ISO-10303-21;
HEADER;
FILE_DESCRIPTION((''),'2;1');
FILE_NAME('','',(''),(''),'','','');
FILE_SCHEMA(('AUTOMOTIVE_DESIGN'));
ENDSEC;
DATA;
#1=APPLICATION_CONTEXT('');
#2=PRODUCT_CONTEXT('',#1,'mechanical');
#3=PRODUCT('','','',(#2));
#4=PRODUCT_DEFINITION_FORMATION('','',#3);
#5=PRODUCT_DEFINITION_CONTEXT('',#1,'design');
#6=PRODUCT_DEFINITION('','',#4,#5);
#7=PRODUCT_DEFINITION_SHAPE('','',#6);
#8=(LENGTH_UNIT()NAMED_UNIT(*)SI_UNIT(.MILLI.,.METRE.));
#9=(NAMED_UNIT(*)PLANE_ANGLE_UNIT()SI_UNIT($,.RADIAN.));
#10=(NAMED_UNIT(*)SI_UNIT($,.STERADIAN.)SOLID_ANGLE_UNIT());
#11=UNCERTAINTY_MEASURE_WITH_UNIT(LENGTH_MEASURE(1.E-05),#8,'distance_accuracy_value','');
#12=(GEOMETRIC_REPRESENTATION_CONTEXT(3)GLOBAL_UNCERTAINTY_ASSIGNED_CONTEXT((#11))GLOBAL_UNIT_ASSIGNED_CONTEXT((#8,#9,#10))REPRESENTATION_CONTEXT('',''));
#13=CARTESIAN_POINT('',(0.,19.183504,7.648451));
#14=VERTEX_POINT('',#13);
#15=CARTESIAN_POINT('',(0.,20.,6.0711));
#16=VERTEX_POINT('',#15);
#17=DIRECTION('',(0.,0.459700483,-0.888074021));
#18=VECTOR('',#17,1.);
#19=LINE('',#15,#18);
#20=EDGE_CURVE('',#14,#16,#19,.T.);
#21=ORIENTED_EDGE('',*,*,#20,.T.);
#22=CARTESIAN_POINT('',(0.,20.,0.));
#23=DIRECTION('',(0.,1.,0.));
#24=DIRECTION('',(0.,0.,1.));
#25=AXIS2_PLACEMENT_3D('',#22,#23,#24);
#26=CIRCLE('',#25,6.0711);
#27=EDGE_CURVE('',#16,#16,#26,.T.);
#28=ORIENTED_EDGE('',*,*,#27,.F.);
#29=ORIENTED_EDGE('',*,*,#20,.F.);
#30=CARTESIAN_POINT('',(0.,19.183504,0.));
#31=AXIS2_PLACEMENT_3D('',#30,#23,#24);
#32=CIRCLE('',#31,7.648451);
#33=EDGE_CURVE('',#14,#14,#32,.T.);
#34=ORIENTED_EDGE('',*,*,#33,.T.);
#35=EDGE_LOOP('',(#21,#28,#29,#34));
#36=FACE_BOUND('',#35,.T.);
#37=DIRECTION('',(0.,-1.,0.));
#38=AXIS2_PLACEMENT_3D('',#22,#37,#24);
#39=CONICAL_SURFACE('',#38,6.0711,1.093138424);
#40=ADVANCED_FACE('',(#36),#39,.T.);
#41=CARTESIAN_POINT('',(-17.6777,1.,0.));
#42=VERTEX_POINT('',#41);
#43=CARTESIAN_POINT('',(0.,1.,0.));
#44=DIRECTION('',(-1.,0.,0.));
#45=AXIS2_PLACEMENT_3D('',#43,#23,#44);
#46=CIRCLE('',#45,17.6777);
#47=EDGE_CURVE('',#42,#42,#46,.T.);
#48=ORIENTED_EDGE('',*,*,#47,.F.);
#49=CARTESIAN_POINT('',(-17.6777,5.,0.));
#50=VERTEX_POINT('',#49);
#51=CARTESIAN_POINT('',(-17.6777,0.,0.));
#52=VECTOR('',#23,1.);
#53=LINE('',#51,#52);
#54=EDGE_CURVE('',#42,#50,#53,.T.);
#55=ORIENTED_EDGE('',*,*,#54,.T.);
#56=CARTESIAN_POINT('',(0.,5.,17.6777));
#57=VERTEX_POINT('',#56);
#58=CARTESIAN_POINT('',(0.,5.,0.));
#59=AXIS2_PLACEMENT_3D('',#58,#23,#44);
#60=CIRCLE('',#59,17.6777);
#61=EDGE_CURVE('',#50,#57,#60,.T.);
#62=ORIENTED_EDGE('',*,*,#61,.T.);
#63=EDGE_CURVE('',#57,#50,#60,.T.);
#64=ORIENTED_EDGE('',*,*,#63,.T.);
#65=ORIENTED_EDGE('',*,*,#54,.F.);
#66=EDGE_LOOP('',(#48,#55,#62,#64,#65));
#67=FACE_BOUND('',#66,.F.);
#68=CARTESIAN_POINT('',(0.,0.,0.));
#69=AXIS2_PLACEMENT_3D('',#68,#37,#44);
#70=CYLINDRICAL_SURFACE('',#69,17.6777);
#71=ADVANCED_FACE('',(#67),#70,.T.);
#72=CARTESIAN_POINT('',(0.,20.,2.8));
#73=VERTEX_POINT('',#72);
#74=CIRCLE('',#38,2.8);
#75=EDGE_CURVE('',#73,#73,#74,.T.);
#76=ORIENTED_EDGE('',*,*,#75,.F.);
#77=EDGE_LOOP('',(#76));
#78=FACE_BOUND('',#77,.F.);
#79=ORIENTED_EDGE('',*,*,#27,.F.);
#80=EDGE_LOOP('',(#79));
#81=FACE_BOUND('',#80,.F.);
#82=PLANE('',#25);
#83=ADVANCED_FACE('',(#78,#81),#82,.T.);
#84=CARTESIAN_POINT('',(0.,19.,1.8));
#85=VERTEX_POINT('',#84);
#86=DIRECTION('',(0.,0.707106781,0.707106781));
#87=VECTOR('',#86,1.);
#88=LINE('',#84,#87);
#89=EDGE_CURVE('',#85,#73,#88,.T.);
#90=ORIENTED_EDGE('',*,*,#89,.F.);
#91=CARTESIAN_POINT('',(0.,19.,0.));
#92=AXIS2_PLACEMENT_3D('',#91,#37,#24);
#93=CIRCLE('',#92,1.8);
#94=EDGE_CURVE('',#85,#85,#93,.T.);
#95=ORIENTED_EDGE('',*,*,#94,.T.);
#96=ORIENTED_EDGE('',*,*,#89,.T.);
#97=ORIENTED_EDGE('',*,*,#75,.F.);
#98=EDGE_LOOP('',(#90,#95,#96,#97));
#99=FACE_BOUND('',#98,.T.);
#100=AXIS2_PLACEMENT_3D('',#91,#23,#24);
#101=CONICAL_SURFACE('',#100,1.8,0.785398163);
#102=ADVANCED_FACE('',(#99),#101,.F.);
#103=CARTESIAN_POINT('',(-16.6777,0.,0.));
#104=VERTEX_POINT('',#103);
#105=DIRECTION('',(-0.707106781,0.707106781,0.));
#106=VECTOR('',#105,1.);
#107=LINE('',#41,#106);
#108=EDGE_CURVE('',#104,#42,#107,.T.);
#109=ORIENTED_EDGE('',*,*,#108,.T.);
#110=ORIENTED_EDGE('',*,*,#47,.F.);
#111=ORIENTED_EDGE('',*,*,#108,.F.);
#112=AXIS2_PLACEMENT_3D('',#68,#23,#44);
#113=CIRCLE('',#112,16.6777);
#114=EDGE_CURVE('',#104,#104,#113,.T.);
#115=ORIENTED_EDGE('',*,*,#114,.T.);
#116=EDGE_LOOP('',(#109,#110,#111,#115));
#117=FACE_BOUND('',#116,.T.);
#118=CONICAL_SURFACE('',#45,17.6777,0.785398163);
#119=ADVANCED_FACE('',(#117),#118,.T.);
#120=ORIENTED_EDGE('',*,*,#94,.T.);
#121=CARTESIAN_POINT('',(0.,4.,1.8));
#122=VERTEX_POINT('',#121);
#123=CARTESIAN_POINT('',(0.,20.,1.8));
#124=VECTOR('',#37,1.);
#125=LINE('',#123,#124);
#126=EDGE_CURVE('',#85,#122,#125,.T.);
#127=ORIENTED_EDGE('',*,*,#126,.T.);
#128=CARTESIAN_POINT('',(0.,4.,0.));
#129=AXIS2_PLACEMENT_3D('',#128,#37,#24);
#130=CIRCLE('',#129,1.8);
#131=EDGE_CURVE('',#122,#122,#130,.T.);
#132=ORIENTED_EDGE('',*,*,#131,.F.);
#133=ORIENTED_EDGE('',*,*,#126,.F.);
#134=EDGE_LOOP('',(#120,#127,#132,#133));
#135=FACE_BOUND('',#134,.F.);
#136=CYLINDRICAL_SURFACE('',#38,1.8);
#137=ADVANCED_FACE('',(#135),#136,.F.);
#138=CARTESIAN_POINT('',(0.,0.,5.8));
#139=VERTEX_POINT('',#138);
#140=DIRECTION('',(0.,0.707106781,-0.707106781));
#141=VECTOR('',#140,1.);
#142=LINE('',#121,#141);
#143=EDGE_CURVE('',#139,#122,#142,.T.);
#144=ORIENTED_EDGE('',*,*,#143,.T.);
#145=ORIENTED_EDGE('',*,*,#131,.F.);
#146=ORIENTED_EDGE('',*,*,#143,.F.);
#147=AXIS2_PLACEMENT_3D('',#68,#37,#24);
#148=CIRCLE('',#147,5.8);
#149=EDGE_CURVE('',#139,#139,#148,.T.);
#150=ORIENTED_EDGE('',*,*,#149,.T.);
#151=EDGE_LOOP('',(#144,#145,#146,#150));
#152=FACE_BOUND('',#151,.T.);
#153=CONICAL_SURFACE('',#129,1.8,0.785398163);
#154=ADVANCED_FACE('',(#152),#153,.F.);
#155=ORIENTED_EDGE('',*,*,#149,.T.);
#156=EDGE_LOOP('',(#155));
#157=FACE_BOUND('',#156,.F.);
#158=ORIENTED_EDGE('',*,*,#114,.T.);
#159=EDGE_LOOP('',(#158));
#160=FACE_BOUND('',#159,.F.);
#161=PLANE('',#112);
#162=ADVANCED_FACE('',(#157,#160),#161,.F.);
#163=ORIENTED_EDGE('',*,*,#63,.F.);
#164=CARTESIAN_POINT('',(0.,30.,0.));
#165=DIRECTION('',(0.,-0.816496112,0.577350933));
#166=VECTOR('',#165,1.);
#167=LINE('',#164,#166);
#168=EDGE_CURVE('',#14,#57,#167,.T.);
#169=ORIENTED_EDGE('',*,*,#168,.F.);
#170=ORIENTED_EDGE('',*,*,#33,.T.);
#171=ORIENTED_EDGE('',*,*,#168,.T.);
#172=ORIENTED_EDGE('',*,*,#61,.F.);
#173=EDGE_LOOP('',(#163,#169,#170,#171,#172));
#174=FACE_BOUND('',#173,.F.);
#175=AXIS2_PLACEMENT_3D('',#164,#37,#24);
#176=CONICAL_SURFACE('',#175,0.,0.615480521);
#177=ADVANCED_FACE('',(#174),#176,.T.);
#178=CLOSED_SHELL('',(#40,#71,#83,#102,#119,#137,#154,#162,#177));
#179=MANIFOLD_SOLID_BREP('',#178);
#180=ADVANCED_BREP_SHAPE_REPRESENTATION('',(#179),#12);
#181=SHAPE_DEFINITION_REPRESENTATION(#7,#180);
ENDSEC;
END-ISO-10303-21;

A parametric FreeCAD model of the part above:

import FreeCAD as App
import Part
import Sketcher
from FreeCAD import Vector


def edges_at(feature, points):
    """Names of the edges that pass closest to the given points."""
    edges = feature.Shape.Edges
    near = lambda p: min(range(len(edges)), key=lambda i: edges[i].distToShape(Part.Vertex(*p))[0])
    return sorted({f"Edge{near(p) + 1}" for p in points})

doc = App.newDocument("Part")
body = doc.addObject("PartDesign::Body", "Body")

sketch1 = body.newObject("Sketcher::SketchObject", "Sketch")
sketch1.AttachmentSupport = (doc.getObject("XZ_Plane"), [""])
sketch1.MapMode = "FlatFace"
sketch1.addGeometry(Part.Circle(Vector(0, 0, 0), Vector(0, 0, 1), 18), False)
sketch1.addConstraint([
    Sketcher.Constraint("Coincident", 0, 3, -1, 1),
    Sketcher.Constraint("Diameter", 0, 35.3554),
])
pad1 = body.newObject("PartDesign::Pad", "Pad")
pad1.Profile = sketch1
pad1.Length = 5
pad1.Reversed = True

sketch2 = body.newObject("Sketcher::SketchObject", "Sketch001")
sketch2.AttachmentSupport = (doc.getObject("YZ_Plane"), [""])
sketch2.MapMode = "FlatFace"
sketch2.addGeometry([
    Part.LineSegment(Vector(5, 18, 0), Vector(5, 0, 0)),
    Part.LineSegment(Vector(5, 0, 0), Vector(20, 0, 0)),
    Part.LineSegment(Vector(20, 0, 0), Vector(20, 7, 0)),
    Part.LineSegment(Vector(20, 7, 0), Vector(5, 18, 0)),
], False)
sketch2.addConstraint([
    Sketcher.Constraint("Coincident", 0, 2, 1, 1),
    Sketcher.Constraint("Coincident", 1, 2, 2, 1),
    Sketcher.Constraint("Coincident", 2, 2, 3, 1),
    Sketcher.Constraint("Coincident", 3, 2, 0, 1),
    Sketcher.Constraint("Vertical", 0),
    Sketcher.Constraint("Horizontal", 1),
    Sketcher.Constraint("Vertical", 2),
    Sketcher.Constraint("PointOnObject", 0, 2, -1),
    Sketcher.Constraint("DistanceX", 1, 1, 1, 2, 15.0),
    Sketcher.Constraint("DistanceX", -1, 1, 0, 2, 5.0),
    Sketcher.Constraint("DistanceY", 2, 1, 2, 2, 7.071),
    Sketcher.Constraint("DistanceY", 0, 2, 0, 1, 17.6777),
])
revolution = body.newObject("PartDesign::Revolution", "Revolution")
revolution.Profile = sketch2
revolution.ReferenceAxis = (sketch2, ["H_Axis"])
revolution.Angle = 360

sketch3 = body.newObject("Sketcher::SketchObject", "Sketch002")
sketch3.AttachmentSupport = (doc.getObject("XZ_Plane"), [""])
sketch3.MapMode = "FlatFace"
sketch3.AttachmentOffset = App.Placement(Vector(0, 0, -20), App.Rotation())
sketch3.addGeometry(Part.Circle(Vector(0, 0, 0), Vector(0, 0, 1), 1.8), False)
sketch3.addConstraint([
    Sketcher.Constraint("Coincident", 0, 3, -1, 1),
    Sketcher.Constraint("Diameter", 0, 3.6),
])
doc.recompute()
hole = body.newObject("PartDesign::Hole", "Hole")
hole.Profile = sketch3
hole.ThreadType = "None"
hole.Diameter = 3.6
hole.DepthType = "ThroughAll"
hole.Reversed = True
doc.recompute()

chamfer = body.newObject("PartDesign::Chamfer", "Chamfer")
chamfer.Base = (hole, edges_at(hole, [(0, 0, -1.8)]))
chamfer.Size = 4
doc.recompute()

chamfer2 = body.newObject("PartDesign::Chamfer", "Chamfer001")
chamfer2.Base = (chamfer, edges_at(chamfer, [(17.678, 0, 0), (0, 20, -7.071)]))
chamfer2.Size = 1
doc.recompute()

chamfer3 = body.newObject("PartDesign::Chamfer", "Chamfer002")
chamfer3.Base = (chamfer2, edges_at(chamfer2, [(0, 20, -1.8)]))
chamfer3.Size = 1

doc.recompute()
